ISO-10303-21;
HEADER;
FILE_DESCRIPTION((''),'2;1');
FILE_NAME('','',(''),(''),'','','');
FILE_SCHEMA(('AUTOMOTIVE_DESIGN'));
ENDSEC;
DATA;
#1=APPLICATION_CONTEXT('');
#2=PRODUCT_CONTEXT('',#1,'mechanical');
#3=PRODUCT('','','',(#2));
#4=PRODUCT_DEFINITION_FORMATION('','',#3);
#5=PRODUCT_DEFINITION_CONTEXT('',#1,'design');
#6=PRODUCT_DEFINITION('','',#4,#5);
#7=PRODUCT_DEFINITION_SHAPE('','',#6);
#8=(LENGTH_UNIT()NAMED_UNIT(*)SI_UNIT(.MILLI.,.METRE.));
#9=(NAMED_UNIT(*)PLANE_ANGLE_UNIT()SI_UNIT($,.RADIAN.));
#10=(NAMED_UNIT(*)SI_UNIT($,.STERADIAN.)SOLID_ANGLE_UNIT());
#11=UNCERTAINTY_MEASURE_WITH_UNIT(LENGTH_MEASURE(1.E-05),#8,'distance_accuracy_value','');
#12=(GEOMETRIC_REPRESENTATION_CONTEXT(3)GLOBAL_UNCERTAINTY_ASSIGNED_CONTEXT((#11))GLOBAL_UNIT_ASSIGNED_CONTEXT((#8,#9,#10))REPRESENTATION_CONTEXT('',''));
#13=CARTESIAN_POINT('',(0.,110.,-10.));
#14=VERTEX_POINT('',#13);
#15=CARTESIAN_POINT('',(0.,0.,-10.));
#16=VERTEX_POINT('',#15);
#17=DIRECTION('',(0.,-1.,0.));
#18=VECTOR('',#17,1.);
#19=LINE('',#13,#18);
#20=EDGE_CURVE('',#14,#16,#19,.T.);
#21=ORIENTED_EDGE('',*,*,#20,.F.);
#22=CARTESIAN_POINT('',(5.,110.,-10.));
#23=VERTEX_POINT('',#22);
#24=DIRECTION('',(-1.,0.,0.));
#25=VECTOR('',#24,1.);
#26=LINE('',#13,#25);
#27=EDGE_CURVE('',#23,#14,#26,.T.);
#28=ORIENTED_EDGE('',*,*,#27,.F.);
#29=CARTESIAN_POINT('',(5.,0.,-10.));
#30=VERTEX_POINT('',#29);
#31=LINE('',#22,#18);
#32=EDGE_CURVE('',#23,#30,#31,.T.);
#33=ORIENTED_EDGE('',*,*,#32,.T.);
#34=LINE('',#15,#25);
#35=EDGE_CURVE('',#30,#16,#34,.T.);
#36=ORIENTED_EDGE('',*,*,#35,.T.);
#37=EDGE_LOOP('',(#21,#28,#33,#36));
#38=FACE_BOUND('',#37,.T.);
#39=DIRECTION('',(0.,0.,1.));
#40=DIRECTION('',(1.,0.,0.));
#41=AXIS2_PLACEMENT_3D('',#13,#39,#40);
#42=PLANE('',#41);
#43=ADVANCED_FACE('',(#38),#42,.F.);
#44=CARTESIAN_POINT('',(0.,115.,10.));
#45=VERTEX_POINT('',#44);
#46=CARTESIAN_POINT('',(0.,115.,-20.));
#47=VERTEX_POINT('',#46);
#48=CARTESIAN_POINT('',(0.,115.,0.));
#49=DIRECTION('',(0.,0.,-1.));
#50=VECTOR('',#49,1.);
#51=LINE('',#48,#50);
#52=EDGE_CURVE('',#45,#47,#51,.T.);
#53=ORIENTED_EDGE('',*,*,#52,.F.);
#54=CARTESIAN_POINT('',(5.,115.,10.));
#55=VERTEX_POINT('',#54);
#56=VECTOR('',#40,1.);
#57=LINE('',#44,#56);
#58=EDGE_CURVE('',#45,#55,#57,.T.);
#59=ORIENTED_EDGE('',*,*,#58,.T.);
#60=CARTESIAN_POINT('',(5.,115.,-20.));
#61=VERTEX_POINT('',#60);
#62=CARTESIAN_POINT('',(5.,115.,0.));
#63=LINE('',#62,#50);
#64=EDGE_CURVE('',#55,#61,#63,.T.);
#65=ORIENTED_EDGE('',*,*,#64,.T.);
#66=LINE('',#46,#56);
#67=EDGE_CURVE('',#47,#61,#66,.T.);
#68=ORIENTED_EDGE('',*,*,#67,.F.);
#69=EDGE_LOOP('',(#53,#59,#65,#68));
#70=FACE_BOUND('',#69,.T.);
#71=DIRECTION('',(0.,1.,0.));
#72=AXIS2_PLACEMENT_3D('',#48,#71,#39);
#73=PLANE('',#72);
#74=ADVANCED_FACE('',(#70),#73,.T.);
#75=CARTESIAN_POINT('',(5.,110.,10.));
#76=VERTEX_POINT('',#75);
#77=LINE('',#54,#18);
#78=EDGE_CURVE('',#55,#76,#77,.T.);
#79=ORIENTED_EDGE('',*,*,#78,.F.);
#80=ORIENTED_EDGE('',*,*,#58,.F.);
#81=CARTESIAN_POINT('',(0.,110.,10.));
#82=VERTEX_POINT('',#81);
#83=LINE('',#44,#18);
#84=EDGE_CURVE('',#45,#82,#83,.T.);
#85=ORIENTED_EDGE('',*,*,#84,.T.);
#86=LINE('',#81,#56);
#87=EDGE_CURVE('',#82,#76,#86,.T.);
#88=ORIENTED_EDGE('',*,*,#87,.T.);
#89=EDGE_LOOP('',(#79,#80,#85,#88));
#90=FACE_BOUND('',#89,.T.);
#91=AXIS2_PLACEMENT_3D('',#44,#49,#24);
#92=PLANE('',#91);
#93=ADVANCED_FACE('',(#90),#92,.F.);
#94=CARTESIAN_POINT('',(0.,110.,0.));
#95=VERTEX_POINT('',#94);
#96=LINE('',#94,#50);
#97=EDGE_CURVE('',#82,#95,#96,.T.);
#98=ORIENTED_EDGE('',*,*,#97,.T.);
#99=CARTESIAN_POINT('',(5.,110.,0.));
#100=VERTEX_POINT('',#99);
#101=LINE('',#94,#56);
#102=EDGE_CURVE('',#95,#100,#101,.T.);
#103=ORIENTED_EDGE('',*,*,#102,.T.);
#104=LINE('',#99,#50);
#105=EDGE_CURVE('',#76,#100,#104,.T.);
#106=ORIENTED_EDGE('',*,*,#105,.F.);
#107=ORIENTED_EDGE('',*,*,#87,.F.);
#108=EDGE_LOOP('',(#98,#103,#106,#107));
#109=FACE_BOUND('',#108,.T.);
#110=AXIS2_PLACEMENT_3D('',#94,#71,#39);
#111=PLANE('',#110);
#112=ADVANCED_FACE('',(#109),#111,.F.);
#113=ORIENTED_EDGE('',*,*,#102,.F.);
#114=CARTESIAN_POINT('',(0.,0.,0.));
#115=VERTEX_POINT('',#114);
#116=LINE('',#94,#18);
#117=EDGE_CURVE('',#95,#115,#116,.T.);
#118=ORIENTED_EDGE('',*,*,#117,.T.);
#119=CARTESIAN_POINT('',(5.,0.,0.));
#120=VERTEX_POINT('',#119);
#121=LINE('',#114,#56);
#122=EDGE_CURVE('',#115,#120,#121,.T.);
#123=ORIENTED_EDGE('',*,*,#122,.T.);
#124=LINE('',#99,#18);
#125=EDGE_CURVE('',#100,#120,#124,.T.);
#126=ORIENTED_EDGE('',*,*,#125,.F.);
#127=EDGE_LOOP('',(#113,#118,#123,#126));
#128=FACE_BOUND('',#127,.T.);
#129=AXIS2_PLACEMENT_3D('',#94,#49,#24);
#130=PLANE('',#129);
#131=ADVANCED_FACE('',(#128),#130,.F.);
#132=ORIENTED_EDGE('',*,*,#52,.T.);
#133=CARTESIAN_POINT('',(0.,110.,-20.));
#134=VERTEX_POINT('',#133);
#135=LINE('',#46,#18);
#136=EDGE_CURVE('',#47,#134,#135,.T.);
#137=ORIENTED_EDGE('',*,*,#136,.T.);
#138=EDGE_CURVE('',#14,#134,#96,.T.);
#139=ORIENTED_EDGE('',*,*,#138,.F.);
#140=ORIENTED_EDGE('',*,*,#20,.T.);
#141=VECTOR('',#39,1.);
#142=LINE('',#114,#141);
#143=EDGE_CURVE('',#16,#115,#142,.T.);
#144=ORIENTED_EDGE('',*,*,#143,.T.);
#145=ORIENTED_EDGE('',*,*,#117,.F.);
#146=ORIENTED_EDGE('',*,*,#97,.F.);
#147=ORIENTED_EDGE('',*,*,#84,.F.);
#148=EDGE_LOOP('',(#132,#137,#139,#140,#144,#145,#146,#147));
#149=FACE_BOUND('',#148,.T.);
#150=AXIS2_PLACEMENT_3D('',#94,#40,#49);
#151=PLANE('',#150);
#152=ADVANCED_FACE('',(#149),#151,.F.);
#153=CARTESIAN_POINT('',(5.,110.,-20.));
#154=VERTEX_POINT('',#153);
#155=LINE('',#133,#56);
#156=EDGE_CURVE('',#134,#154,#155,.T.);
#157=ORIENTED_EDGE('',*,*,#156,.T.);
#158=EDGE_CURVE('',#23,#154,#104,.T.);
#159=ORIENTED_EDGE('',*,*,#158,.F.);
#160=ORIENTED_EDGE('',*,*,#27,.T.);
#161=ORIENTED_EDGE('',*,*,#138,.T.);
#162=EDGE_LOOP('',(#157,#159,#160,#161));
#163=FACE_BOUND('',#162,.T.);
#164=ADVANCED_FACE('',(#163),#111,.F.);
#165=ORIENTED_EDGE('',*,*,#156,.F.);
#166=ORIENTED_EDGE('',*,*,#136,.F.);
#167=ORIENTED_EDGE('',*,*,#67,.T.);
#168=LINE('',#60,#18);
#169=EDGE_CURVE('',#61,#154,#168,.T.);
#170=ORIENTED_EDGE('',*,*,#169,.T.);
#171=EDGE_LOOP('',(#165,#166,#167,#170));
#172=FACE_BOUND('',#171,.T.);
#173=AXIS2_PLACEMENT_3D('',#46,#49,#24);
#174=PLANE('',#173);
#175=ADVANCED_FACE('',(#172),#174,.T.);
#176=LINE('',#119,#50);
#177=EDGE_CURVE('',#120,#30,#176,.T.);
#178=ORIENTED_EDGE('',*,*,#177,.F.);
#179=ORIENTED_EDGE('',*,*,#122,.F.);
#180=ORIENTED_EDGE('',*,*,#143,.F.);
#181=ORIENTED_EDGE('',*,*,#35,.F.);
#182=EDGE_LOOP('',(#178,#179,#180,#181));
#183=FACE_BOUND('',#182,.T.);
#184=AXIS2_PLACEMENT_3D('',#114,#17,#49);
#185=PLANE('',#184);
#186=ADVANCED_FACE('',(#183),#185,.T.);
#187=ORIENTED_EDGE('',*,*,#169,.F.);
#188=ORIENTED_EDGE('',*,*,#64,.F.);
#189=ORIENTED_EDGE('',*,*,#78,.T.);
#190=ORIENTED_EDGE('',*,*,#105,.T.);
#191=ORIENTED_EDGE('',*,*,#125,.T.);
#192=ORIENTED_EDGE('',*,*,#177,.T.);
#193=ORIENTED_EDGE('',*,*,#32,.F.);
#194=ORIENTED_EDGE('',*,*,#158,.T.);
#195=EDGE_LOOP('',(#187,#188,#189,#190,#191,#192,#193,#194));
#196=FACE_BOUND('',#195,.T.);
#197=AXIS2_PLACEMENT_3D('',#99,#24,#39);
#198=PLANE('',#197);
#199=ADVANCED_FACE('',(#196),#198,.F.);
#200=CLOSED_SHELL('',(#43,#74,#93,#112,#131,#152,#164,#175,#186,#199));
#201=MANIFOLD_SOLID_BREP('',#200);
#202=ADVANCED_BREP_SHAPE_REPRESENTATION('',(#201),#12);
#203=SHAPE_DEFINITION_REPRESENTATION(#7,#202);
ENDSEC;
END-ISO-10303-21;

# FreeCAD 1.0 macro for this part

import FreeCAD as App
import Part
import Sketcher

V = App.Vector
Q = App.Units.Quantity

doc = App.newDocument("Part")
body = doc.addObject("PartDesign::Body", "Body")

sketch1 = body.newObject("Sketcher::SketchObject", "Sketch")
sketch1.AttachmentSupport = (doc.getObject("XZ_Plane"), [""])
sketch1.MapMode = "FlatFace"
sketch1.addGeometry([
    Part.LineSegment(V(0, -10, 0), V(0, 0, 0)),
    Part.LineSegment(V(0, 0, 0), V(5, 0, 0)),
    Part.LineSegment(V(5, 0, 0), V(5, -10, 0)),
    Part.LineSegment(V(5, -10, 0), V(0, -10, 0)),
], False)
sketch1.addConstraint([
    Sketcher.Constraint("Coincident", 0, 2, 1, 1),
    Sketcher.Constraint("Coincident", 1, 2, 2, 1),
    Sketcher.Constraint("Coincident", 2, 2, 3, 1),
    Sketcher.Constraint("Coincident", 3, 2, 0, 1),
    Sketcher.Constraint("Vertical", 0),
    Sketcher.Constraint("Horizontal", 1),
    Sketcher.Constraint("Vertical", 2),
    Sketcher.Constraint("Horizontal", 3),
    Sketcher.Constraint("Coincident", 0, 2, -1, 1),
    Sketcher.Constraint("DistanceX", 1, 1, 1, 2, Q("5 mm")),
    Sketcher.Constraint("DistanceY", 0, 1, 0, 2, Q("10 mm")),
])
pad1 = body.newObject("PartDesign::Pad", "Pad")
pad1.Profile = sketch1
pad1.Length = 110
pad1.Reversed = True

sketch2 = body.newObject("Sketcher::SketchObject", "Sketch001")
sketch2.AttachmentSupport = (doc.getObject("XZ_Plane"), [""])
sketch2.MapMode = "FlatFace"
sketch2.AttachmentOffset = App.Placement(V(0, 0, -110), App.Rotation())
sketch2.addGeometry([
    Part.LineSegment(V(0, -20, 0), V(0, 10, 0)),
    Part.LineSegment(V(0, 10, 0), V(5, 10, 0)),
    Part.LineSegment(V(5, 10, 0), V(5, -20, 0)),
    Part.LineSegment(V(5, -20, 0), V(0, -20, 0)),
], False)
sketch2.addConstraint([
    Sketcher.Constraint("Coincident", 0, 2, 1, 1),
    Sketcher.Constraint("Coincident", 1, 2, 2, 1),
    Sketcher.Constraint("Coincident", 2, 2, 3, 1),
    Sketcher.Constraint("Coincident", 3, 2, 0, 1),
    Sketcher.Constraint("Vertical", 0),
    Sketcher.Constraint("Horizontal", 1),
    Sketcher.Constraint("Vertical", 2),
    Sketcher.Constraint("Horizontal", 3),
    Sketcher.Constraint("PointOnObject", 0, 2, -2),
    Sketcher.Constraint("DistanceX", 1, 1, 1, 2, Q("5 mm")),
    Sketcher.Constraint("DistanceY", 0, 1, 0, 2, Q("30 mm")),
    Sketcher.Constraint("DistanceY", -1, 1, 0, 2, Q("10 mm")),
])
pad2 = body.newObject("PartDesign::Pad", "Pad001")
pad2.Profile = sketch2
pad2.Length = 5
pad2.Reversed = True

doc.recompute()
